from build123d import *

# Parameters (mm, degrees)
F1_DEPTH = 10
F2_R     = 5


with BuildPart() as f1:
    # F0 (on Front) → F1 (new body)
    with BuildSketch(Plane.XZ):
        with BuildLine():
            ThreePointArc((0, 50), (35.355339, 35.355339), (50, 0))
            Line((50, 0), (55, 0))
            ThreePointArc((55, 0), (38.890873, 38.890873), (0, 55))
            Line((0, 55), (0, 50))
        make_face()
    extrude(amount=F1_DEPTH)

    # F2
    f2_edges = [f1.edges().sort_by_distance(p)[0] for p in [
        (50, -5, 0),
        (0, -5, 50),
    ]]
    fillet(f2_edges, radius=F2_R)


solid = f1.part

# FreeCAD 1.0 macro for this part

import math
import FreeCAD as App
import Part
import Sketcher
from FreeCAD import Vector
Q = App.Units.Quantity


def edges_at(feature, points):
    """Names of the edges that pass closest to the given points."""
    edges = feature.Shape.Edges
    near = lambda p: min(range(len(edges)), key=lambda i: edges[i].distToShape(Part.Vertex(*p))[0])
    return sorted({f"Edge{near(p) + 1}" for p in points})

doc = App.newDocument("Part")
params = doc.addObject("Spreadsheet::Sheet", "Params")
for row, (alias, value) in enumerate([
    ("sketch1_radius", "50 mm"),
    ("sketch1_radius2", "55 mm"),
    ("pad1_length", "10 mm"),
    ("fillet_radius", "5 mm"),
], start=1):
    params.set(f"A{row}", alias)
    params.set(f"B{row}", "=" + value)
    params.setAlias(f"B{row}", alias)

body = doc.addObject("PartDesign::Body", "Body")

# Sketch on XZ plane
sketch1 = body.newObject("Sketcher::SketchObject", "Sketch")
sketch1.AttachmentSupport = (doc.getObject("XZ_Plane"), [""])
sketch1.MapMode = "FlatFace"
sketch1.addGeometry([
    Part.ArcOfCircle(Part.Circle(Vector(0, 0, 0), Vector(0, 0, 1), 50), math.radians(0), math.radians(90)),
    Part.LineSegment(Vector(50, 0, 0), Vector(55, 0, 0)),
    Part.ArcOfCircle(Part.Circle(Vector(0, 0, 0), Vector(0, 0, 1), 55), math.radians(0), math.radians(90)),
    Part.LineSegment(Vector(0, 55, 0), Vector(0, 50, 0)),
], False)
sketch1.addConstraint([
    Sketcher.Constraint("Coincident", 0, 1, 1, 1),
    Sketcher.Constraint("Coincident", 1, 2, 2, 1),
    Sketcher.Constraint("Coincident", 2, 2, 3, 1),
    Sketcher.Constraint("Coincident", 3, 2, 0, 2),
    Sketcher.Constraint("Horizontal", 1),
    Sketcher.Constraint("Vertical", 3),
    Sketcher.Constraint("Coincident", 0, 3, -1, 1),
    Sketcher.Constraint("Coincident", 2, 3, -1, 1),
    Sketcher.Constraint("PointOnObject", 0, 1, -1),
    Sketcher.Constraint("PointOnObject", 2, 2, -2),
    Sketcher.Constraint("Radius", 0, Q("50 mm")),
    Sketcher.Constraint("Radius", 2, Q("55 mm")),
])
sketch1.setExpression("Constraints[10]", "Params.sketch1_radius")
sketch1.setExpression("Constraints[11]", "Params.sketch1_radius2")
pad1 = body.newObject("PartDesign::Pad", "Pad")
pad1.Profile = sketch1
pad1.setExpression("Length", "Params.pad1_length")
doc.recompute()

fillet = body.newObject("PartDesign::Fillet", "Fillet")
fillet.Base = (pad1, edges_at(pad1, [(50, -5, 0), (0, -5, 50)]))
fillet.setExpression("Radius", "Params.fillet_radius")

doc.recompute()
